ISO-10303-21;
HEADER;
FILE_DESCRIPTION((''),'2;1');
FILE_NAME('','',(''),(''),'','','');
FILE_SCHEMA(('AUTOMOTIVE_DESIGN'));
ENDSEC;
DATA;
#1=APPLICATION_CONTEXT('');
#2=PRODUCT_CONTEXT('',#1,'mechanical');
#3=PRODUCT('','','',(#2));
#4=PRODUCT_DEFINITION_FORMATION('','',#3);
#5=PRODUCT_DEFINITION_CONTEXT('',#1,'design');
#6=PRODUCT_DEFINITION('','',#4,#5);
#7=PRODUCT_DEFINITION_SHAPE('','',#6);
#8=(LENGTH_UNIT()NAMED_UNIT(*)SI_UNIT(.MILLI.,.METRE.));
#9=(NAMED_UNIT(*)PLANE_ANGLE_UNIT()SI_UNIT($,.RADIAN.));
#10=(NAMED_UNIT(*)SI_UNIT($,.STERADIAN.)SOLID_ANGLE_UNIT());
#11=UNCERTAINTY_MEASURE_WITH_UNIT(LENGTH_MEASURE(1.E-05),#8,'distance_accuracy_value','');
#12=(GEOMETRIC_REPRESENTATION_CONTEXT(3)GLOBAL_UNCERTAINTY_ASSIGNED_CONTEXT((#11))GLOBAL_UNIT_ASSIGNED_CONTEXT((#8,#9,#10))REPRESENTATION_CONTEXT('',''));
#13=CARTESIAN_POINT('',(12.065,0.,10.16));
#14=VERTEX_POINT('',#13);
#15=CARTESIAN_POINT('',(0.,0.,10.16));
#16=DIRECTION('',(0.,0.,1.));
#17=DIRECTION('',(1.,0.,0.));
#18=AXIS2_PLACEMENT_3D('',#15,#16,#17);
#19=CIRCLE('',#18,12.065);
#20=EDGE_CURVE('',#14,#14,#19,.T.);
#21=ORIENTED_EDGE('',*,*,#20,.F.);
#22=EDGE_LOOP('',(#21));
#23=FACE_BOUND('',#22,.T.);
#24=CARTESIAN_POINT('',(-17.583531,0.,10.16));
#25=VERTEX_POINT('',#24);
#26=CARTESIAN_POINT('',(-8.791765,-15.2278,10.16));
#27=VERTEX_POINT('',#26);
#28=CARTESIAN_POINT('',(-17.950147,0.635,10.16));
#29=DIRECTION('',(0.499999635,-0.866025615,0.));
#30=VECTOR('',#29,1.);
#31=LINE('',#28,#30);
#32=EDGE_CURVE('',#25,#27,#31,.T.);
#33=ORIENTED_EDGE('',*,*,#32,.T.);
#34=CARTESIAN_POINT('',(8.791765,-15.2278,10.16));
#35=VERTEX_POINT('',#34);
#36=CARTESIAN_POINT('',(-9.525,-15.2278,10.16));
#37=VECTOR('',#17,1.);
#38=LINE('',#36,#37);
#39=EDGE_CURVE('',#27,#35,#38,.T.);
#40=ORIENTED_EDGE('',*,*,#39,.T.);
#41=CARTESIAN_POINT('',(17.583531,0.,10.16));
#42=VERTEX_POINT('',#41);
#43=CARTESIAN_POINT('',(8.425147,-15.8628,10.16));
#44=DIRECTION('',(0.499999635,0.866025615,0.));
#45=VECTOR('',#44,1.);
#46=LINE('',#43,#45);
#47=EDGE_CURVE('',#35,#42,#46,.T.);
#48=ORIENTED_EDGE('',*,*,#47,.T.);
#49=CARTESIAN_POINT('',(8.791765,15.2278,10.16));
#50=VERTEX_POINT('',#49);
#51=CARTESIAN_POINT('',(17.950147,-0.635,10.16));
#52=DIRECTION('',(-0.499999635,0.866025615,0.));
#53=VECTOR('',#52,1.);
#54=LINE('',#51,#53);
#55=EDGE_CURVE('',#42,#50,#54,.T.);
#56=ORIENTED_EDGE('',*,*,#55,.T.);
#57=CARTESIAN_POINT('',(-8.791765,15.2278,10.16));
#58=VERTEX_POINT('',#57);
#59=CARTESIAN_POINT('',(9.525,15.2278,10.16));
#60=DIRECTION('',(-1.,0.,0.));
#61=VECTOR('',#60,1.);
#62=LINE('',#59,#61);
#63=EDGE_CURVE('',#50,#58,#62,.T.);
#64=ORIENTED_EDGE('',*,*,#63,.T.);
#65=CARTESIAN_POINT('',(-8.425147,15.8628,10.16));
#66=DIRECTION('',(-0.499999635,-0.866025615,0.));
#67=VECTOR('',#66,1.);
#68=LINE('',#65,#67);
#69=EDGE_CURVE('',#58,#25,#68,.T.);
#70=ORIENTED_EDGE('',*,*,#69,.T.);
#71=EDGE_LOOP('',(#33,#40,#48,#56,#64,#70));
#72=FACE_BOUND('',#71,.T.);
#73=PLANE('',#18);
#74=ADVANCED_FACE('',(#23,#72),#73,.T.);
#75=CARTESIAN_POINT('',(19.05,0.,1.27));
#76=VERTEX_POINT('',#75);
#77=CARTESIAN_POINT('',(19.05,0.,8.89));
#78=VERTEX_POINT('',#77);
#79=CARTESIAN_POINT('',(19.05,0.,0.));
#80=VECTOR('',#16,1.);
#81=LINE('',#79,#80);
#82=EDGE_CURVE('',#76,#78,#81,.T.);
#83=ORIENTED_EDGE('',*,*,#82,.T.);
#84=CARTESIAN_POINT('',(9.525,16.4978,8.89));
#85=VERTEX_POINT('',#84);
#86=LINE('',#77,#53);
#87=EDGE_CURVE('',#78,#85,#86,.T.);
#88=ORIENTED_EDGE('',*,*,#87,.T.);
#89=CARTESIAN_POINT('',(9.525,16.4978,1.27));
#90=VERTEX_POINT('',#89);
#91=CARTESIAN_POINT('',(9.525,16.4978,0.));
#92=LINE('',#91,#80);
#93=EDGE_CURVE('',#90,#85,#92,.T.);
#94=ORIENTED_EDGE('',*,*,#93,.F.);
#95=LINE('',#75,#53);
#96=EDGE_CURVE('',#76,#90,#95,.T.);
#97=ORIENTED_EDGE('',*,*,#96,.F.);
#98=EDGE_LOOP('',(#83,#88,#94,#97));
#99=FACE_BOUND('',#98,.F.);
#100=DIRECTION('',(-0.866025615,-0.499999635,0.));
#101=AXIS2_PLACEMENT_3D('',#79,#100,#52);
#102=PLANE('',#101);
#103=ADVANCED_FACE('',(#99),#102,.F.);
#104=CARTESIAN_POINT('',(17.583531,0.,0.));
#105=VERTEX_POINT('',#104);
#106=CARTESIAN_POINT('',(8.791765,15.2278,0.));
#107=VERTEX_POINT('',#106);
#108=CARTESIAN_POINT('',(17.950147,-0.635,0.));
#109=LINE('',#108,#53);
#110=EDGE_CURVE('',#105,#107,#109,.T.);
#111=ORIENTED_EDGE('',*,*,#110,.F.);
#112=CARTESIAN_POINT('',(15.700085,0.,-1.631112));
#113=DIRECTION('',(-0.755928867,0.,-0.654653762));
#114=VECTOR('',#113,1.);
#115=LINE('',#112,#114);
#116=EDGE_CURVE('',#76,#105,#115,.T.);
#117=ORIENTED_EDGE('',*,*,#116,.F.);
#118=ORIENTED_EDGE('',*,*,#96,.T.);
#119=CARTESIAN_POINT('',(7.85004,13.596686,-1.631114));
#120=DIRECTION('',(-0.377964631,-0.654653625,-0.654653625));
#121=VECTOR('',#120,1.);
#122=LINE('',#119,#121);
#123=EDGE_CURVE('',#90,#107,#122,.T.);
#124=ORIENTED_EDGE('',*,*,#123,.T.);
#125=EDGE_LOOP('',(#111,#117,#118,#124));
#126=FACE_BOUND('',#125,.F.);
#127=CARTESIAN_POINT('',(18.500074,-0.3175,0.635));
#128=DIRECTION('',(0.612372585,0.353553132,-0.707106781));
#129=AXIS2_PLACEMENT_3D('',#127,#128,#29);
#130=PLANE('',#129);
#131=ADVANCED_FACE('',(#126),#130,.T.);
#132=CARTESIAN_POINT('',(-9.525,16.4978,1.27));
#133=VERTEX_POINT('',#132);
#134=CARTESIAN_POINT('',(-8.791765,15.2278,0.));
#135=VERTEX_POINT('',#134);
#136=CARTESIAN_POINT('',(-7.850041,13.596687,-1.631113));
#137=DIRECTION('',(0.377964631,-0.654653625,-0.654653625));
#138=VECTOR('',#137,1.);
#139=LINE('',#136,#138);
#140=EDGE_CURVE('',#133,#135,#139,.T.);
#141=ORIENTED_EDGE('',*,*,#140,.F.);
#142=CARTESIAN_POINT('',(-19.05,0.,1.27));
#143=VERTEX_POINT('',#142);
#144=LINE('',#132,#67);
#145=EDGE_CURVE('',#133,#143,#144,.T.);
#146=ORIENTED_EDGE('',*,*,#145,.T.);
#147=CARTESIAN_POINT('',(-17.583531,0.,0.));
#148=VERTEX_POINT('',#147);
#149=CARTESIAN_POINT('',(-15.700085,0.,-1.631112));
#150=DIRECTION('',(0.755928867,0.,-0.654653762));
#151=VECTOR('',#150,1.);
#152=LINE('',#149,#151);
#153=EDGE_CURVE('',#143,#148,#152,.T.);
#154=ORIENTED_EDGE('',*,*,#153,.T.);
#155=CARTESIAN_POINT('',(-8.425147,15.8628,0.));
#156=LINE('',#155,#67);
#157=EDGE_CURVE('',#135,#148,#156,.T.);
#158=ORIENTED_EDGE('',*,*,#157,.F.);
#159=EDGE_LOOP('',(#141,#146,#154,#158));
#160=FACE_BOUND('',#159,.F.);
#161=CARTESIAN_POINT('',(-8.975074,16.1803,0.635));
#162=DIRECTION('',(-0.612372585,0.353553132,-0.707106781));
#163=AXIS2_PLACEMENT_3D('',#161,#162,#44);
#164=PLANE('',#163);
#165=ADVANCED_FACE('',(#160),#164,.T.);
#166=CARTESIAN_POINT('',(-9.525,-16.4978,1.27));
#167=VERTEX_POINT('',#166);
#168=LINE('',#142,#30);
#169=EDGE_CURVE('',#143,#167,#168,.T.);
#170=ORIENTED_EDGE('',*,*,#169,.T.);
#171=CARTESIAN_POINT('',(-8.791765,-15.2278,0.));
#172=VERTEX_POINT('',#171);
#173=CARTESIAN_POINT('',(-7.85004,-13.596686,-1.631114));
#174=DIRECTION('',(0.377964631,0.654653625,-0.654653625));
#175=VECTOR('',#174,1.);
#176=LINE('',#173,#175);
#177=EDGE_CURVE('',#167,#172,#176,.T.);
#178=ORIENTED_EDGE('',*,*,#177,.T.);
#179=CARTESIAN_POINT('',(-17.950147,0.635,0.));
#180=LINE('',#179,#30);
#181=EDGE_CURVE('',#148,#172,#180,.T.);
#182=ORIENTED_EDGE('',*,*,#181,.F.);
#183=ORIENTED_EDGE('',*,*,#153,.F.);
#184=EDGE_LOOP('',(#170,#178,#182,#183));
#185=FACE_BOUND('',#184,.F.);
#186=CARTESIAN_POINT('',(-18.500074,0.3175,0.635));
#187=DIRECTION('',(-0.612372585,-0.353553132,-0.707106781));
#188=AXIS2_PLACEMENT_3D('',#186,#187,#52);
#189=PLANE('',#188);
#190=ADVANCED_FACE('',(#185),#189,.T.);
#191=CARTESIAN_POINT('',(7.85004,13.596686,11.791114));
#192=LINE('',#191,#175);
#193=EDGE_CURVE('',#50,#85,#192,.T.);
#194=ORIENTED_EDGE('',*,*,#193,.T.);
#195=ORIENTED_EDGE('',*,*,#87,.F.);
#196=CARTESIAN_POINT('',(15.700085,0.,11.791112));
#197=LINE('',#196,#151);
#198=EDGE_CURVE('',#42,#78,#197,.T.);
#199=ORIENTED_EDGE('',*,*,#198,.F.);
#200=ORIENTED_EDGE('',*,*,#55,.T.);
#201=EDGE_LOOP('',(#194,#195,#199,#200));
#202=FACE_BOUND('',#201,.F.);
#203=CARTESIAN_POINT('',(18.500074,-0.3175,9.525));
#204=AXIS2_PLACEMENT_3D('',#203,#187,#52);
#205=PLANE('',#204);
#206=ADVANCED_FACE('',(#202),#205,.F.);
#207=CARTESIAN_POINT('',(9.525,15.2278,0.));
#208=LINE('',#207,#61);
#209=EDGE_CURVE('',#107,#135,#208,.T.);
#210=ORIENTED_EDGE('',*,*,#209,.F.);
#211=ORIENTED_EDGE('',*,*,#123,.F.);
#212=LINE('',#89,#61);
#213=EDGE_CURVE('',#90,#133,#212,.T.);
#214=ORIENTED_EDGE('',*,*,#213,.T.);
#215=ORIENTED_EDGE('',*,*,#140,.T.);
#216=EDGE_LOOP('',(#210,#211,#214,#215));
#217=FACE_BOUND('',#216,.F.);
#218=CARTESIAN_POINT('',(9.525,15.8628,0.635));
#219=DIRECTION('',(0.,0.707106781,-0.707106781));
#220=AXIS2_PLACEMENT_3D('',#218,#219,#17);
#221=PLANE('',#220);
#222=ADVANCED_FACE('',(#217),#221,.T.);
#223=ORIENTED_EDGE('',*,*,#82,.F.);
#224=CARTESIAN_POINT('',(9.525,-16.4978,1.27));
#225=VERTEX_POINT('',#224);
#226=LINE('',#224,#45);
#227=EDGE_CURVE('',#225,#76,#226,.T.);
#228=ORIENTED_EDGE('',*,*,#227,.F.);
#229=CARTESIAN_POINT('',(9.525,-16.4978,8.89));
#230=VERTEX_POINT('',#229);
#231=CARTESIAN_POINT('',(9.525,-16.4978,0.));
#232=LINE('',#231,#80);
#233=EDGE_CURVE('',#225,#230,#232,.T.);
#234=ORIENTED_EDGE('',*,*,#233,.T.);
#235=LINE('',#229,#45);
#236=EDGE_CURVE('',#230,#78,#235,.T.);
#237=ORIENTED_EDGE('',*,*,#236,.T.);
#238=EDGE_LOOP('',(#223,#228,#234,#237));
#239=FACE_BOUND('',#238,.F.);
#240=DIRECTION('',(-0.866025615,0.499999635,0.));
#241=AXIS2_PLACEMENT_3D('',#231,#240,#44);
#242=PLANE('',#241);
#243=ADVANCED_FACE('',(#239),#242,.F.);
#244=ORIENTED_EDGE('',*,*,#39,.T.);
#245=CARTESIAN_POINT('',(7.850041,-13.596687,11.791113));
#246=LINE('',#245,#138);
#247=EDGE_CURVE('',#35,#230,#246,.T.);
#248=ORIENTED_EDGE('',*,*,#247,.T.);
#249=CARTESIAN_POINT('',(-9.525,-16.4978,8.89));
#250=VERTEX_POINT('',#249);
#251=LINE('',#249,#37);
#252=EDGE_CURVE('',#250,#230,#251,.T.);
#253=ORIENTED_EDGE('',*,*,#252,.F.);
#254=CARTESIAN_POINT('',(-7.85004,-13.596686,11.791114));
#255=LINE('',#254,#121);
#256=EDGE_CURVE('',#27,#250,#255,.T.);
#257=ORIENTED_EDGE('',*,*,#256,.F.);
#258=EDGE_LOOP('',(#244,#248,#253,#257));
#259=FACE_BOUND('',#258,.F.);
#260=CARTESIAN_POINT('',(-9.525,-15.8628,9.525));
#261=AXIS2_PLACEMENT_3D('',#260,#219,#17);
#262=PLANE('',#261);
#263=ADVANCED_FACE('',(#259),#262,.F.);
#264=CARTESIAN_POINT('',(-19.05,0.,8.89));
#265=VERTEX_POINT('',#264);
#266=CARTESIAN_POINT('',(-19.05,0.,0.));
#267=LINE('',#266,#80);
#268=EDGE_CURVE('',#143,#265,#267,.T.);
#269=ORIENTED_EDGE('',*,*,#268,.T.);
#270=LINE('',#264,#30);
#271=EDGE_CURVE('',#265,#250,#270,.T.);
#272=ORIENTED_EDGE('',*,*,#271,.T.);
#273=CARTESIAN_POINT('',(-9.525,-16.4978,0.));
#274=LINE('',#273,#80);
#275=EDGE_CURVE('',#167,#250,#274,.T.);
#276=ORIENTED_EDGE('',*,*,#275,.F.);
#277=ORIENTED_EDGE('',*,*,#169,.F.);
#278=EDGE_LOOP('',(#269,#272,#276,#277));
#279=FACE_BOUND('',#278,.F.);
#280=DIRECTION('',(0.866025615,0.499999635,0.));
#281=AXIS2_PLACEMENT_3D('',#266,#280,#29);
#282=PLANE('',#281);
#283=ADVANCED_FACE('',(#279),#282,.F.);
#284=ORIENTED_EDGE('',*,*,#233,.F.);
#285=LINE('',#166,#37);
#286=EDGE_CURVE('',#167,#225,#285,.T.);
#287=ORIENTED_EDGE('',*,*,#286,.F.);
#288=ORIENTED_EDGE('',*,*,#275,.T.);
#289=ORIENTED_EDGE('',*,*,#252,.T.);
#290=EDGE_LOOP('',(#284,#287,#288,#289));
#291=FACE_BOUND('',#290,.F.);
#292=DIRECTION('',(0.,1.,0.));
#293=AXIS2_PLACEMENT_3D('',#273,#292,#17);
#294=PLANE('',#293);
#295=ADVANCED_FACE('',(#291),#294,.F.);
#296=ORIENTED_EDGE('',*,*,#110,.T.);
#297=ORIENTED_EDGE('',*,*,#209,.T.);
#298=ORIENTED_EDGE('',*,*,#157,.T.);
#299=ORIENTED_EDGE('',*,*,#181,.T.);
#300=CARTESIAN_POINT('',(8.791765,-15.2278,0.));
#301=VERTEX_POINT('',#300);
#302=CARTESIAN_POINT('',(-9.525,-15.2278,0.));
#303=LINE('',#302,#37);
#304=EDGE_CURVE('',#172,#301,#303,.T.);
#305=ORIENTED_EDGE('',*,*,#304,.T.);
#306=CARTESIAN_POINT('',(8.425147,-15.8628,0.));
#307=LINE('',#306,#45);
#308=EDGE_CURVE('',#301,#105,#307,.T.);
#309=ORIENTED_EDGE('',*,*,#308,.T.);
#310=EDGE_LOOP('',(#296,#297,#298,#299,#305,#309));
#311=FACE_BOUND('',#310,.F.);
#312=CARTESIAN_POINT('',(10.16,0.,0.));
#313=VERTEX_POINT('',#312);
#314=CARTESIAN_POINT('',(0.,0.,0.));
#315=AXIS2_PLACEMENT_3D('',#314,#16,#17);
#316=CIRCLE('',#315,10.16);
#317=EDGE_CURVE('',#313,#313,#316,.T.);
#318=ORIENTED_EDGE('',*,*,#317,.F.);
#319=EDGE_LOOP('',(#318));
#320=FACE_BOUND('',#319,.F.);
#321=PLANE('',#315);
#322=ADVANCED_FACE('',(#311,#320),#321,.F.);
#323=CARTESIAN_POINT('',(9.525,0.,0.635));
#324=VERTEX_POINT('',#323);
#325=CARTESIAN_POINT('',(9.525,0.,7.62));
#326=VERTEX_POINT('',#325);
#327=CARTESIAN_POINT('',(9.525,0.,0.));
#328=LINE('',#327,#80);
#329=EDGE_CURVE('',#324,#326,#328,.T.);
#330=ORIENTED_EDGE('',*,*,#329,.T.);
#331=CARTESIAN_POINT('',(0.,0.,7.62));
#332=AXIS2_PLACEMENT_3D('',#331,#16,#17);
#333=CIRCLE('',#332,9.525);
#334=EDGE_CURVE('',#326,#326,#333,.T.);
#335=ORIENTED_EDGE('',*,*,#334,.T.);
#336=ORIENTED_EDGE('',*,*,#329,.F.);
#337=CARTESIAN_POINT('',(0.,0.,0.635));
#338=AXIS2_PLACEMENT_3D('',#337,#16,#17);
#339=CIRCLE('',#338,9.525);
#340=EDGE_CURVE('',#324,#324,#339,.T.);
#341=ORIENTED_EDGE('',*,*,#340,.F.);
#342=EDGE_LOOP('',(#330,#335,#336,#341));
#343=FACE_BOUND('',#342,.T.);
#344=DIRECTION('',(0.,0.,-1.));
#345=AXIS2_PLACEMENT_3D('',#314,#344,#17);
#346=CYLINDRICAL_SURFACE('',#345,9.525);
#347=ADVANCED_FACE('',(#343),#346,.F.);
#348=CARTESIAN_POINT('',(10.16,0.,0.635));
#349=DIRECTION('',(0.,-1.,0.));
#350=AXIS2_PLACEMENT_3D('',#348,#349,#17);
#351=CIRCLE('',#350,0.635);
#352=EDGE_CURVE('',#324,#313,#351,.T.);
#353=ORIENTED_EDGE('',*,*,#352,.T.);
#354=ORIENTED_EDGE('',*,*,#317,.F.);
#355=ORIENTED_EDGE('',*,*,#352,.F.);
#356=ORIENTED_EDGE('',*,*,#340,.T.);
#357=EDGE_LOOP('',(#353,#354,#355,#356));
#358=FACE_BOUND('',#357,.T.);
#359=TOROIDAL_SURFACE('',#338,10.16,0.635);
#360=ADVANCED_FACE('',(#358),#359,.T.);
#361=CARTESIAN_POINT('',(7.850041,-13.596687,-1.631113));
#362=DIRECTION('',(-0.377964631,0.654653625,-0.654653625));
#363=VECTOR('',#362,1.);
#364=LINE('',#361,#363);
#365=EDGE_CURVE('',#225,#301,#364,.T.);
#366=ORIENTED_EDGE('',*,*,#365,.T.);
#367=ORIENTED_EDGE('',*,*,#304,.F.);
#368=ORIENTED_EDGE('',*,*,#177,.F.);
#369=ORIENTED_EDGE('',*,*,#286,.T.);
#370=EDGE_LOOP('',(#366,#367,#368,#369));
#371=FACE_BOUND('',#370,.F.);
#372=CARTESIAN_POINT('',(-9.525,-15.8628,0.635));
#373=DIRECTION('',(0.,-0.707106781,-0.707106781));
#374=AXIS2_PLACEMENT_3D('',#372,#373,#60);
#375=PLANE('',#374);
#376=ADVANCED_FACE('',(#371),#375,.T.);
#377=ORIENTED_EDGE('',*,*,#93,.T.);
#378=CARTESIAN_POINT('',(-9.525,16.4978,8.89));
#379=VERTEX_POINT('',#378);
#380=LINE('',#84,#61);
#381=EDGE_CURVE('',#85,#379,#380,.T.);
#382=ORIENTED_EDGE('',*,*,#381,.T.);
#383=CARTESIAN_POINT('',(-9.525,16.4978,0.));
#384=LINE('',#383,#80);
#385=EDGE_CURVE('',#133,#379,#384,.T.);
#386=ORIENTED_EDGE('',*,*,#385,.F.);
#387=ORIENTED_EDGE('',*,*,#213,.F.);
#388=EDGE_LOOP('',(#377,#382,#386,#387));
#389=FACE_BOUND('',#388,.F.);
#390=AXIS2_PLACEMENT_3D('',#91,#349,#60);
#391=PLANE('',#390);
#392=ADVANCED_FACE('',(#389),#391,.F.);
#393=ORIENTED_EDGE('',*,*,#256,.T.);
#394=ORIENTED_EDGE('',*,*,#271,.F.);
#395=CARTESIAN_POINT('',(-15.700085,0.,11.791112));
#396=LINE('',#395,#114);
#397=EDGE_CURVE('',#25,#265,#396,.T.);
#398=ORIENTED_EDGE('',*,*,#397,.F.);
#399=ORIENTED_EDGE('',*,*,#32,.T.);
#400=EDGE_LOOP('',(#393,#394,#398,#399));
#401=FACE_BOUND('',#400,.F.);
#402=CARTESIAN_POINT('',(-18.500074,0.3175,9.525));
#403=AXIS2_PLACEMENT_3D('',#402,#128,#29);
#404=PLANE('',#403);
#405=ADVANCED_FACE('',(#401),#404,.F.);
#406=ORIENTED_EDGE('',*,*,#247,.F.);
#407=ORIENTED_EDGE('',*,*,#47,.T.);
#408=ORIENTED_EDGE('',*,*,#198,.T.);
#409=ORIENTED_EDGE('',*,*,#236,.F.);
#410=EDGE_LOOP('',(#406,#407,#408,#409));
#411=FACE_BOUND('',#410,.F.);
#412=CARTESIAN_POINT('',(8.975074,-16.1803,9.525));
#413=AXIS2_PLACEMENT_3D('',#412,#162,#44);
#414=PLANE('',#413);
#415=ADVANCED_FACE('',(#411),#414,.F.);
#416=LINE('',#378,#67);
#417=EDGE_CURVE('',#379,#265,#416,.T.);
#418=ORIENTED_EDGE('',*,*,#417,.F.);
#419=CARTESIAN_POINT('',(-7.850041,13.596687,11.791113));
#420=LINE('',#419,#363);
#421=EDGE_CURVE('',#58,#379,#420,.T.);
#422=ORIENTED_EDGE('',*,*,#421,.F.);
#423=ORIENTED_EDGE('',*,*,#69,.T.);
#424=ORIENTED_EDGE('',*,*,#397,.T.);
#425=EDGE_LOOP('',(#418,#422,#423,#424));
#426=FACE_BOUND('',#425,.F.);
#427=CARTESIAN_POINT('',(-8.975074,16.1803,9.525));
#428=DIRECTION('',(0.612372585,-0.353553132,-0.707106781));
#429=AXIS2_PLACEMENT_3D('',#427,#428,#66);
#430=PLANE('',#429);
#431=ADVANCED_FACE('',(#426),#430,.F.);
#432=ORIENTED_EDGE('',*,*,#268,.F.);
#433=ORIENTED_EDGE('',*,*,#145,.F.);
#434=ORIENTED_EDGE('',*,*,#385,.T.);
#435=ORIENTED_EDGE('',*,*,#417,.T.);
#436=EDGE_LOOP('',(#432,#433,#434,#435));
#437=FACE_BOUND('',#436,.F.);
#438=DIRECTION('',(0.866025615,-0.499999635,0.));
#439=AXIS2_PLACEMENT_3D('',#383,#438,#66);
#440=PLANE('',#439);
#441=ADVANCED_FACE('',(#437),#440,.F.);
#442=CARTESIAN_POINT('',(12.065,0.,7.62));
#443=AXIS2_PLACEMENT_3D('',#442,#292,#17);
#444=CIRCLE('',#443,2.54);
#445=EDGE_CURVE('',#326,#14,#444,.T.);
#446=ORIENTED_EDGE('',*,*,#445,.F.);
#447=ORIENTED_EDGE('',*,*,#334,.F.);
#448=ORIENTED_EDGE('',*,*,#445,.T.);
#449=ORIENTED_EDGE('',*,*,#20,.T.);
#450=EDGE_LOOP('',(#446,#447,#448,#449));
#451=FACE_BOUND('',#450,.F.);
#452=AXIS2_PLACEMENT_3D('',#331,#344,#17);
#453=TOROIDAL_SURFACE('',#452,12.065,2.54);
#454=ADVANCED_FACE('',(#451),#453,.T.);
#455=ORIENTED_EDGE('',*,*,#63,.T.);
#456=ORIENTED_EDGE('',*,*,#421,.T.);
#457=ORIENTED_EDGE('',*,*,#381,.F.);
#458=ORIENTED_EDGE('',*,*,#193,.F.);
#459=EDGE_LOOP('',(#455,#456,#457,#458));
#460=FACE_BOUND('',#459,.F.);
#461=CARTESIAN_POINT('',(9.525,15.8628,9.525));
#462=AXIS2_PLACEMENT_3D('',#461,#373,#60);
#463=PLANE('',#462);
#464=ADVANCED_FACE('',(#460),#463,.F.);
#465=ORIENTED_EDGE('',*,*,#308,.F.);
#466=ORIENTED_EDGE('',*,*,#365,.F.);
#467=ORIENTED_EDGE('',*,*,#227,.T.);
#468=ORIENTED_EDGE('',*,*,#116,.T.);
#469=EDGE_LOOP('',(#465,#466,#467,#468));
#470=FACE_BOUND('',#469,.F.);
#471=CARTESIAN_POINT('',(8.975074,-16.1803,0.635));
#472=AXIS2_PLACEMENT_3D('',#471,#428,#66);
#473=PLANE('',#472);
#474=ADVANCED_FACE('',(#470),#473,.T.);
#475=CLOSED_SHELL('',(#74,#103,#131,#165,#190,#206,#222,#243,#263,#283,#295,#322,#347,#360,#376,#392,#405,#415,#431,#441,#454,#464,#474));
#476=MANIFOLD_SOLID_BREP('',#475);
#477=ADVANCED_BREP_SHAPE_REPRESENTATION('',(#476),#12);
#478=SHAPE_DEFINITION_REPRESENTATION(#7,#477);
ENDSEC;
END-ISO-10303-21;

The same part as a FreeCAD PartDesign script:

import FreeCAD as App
import Part
import Sketcher
Q = App.Units.Quantity


def edges_at(feature, points):
    """Names of the edges that pass closest to the given points."""
    edges = feature.Shape.Edges
    near = lambda p: min(range(len(edges)), key=lambda i: edges[i].distToShape(Part.Vertex(*p))[0])
    return sorted({f"Edge{near(p) + 1}" for p in points})

doc = App.newDocument("Part")
body = doc.addObject("PartDesign::Body", "Body")

sketch1 = body.newObject("Sketcher::SketchObject", "Sketch")
sketch1.AttachmentSupport = (doc.getObject("XY_Plane"), [""])
sketch1.MapMode = "FlatFace"
sketch1.addGeometry([
    Part.LineSegment(App.Vector(-10, 16, 0), App.Vector(-19, 0, 0)),
    Part.LineSegment(App.Vector(-19, 0, 0), App.Vector(-10, -16, 0)),
    Part.LineSegment(App.Vector(-10, -16, 0), App.Vector(10, -16, 0)),
    Part.LineSegment(App.Vector(10, -16, 0), App.Vector(19, 0, 0)),
    Part.LineSegment(App.Vector(19, 0, 0), App.Vector(10, 16, 0)),
    Part.LineSegment(App.Vector(10, 16, 0), App.Vector(-10, 16, 0)),
    Part.Circle(App.Vector(0, 0, 0), App.Vector(0, 0, 1), 10),
], False)
sketch1.addConstraint([
    Sketcher.Constraint("Coincident", 0, 2, 1, 1),
    Sketcher.Constraint("Coincident", 1, 2, 2, 1),
    Sketcher.Constraint("Coincident", 2, 2, 3, 1),
    Sketcher.Constraint("Coincident", 3, 2, 4, 1),
    Sketcher.Constraint("Coincident", 4, 2, 5, 1),
    Sketcher.Constraint("Coincident", 5, 2, 0, 1),
    Sketcher.Constraint("Horizontal", 2),
    Sketcher.Constraint("Horizontal", 5),
    Sketcher.Constraint("Coincident", 6, 3, -1, 1),
    Sketcher.Constraint("Symmetric", 0, 2, 3, 2, -1, 1),
    Sketcher.Constraint("Symmetric", 1, 2, 4, 2, -1, 1),
    Sketcher.Constraint("PointOnObject", 0, 2, -1),
    Sketcher.Constraint("Parallel", 0, 3),
    Sketcher.Constraint("Vertical", 2, 2, 4, 2),
    Sketcher.Constraint("Diameter", 6, Q("0.75 in")),
    Sketcher.Constraint("Angle", 0, Q("-120 deg")),
    Sketcher.Constraint("DistanceX", 2, 1, 2, 2, Q("0.75 in")),
    Sketcher.Constraint("DistanceX", 0, 2, 3, 2, Q("1.5 in")),
])
pad1 = body.newObject("PartDesign::Pad", "Pad")
pad1.Profile = sketch1
pad1.Length = Q("0.4 in")
doc.recompute()

fillet = body.newObject("PartDesign::Fillet", "Fillet")
fillet.Base = (pad1, edges_at(pad1, [(-9.525, 0, 10.16)]))
fillet.Radius = Q("0.1 in")
doc.recompute()

fillet2 = body.newObject("PartDesign::Fillet", "Fillet001")
fillet2.Base = (fillet, edges_at(fillet, [(-9.525, 0, 0)]))
fillet2.Radius = Q("0.025 in")
doc.recompute()

chamfer = body.newObject("PartDesign::Chamfer", "Chamfer")
chamfer.Base = (fillet2, edges_at(fillet2, [
    (14.287, 8.249, 10.16),
    (14.287, -8.249, 10.16),
    (0, -16.498, 10.16),
    (-14.287, -8.249, 10.16),
    (-14.287, 8.249, 10.16),
    (0, 16.498, 10.16),
]))
chamfer.Size = Q("0.05 in")
doc.recompute()

chamfer2 = body.newObject("PartDesign::Chamfer", "Chamfer001")
chamfer2.Base = (chamfer, edges_at(chamfer, [
    (14.287, -8.249, 0),
    (0, -16.498, 0),
    (-14.287, -8.249, 0),
    (-14.287, 8.249, 0),
    (0, 16.498, 0),
    (14.287, 8.249, 0),
]))
chamfer2.Size = Q("0.05 in")

doc.recompute()
